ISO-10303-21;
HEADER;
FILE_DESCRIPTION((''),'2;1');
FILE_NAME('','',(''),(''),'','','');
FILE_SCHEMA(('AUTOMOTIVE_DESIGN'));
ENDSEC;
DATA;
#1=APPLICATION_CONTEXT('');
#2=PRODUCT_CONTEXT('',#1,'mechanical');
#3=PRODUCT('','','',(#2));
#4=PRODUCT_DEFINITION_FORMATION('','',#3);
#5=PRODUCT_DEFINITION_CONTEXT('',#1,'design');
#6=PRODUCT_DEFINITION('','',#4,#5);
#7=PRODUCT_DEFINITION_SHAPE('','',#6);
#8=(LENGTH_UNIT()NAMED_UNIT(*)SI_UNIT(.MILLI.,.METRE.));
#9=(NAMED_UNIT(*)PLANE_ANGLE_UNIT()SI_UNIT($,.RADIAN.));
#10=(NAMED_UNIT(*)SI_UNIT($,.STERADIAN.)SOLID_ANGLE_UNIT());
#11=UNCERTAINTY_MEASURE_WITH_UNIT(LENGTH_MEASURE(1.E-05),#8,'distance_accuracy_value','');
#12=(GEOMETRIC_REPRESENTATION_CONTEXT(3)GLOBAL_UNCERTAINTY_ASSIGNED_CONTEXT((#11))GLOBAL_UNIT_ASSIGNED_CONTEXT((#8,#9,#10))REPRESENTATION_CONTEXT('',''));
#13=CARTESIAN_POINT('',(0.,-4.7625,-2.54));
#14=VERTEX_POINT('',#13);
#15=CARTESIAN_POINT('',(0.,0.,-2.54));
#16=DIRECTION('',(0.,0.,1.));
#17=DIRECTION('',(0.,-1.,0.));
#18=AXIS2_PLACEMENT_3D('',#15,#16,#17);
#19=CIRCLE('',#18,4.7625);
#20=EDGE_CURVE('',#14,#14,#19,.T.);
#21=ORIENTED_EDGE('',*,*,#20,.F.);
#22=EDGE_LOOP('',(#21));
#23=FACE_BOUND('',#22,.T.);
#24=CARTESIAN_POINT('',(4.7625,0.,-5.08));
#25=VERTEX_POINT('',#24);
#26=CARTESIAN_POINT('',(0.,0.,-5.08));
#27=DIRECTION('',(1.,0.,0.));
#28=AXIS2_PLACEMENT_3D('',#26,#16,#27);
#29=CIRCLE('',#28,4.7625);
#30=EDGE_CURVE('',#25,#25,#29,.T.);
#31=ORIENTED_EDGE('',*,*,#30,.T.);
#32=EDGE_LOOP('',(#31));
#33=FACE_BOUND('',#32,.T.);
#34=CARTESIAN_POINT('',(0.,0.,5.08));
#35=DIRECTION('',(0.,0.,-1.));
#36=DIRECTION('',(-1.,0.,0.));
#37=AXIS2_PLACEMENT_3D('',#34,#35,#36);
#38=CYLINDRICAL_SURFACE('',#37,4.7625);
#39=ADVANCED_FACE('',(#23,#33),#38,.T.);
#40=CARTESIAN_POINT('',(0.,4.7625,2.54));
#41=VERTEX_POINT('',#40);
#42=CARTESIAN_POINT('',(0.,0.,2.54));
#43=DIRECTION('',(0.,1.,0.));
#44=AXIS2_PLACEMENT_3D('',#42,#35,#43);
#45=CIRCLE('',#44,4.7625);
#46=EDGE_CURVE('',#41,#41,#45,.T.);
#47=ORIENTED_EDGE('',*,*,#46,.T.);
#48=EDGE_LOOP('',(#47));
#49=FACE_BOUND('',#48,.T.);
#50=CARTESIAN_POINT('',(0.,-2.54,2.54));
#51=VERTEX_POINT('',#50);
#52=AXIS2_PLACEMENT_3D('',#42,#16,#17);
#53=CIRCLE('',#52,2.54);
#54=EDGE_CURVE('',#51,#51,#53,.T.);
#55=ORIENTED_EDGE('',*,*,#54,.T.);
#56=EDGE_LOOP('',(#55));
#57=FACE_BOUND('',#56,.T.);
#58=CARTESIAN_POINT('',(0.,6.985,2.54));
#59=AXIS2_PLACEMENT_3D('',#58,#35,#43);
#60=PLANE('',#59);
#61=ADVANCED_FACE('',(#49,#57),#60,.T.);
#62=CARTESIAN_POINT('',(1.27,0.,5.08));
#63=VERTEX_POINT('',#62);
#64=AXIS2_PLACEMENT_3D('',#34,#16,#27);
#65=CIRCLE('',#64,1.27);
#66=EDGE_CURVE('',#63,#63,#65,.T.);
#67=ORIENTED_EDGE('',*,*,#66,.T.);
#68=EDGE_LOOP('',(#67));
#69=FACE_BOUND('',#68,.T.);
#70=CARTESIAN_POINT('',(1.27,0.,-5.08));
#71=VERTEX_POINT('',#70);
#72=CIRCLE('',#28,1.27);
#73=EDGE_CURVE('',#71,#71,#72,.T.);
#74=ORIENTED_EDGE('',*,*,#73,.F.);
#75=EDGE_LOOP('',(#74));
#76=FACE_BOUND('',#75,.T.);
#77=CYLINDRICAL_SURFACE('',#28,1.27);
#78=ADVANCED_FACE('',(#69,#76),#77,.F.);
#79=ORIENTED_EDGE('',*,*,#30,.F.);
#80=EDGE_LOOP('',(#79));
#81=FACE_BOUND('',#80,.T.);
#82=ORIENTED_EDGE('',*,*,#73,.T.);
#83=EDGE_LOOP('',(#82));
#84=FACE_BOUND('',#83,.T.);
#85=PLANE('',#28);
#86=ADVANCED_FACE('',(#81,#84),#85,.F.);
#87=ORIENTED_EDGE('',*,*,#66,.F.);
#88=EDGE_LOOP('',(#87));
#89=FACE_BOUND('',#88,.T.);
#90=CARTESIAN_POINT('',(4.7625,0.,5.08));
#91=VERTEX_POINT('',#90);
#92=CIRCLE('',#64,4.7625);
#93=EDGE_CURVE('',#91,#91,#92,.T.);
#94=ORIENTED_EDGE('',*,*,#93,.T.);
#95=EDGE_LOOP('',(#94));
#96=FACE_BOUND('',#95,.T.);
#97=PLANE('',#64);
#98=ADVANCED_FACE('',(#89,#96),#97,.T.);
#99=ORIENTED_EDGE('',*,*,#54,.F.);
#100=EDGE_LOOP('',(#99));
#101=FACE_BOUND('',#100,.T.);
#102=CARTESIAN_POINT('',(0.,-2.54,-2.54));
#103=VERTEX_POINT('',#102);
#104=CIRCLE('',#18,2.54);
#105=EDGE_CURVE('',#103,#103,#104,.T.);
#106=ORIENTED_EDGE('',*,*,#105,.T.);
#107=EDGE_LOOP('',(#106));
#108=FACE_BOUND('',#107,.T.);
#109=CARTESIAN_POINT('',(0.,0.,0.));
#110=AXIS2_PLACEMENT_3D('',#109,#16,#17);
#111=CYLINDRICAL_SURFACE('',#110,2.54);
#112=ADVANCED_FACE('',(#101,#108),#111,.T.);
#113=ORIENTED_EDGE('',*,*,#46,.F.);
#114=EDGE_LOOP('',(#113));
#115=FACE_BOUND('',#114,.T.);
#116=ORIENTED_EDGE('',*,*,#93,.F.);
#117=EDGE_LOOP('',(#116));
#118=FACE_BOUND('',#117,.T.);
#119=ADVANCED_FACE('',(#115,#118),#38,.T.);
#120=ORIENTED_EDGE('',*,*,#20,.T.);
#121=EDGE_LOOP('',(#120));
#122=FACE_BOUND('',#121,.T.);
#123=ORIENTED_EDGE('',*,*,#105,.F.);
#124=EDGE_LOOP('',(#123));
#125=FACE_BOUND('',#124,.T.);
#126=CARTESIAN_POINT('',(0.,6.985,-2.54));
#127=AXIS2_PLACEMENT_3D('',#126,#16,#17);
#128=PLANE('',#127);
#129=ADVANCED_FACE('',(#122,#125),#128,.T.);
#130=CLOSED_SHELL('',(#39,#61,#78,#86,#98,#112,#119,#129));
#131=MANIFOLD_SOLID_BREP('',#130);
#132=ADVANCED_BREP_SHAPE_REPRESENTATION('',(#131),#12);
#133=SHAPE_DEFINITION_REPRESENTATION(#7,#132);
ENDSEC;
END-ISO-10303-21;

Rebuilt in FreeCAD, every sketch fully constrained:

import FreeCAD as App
import Part
import Sketcher
from FreeCAD import Vector
Q = App.Units.Quantity


def add_polygon(sketch, points):
    """Adds a closed chain of lines whose ends are joined by coincident constraints."""
    first, n = sketch.GeometryCount, len(points)
    for a, b in zip(points, points[1:] + points[:1]):
        sketch.addGeometry(Part.LineSegment(App.Vector(*a, 0), App.Vector(*b, 0)), False)
    for i in range(n):
        sketch.addConstraint(Sketcher.Constraint("Coincident", first + i, 2, first + (i + 1) % n, 1))

doc = App.newDocument("Part")
params = doc.addObject("Spreadsheet::Sheet", "Params")
for row, (alias, value) in enumerate([
    ("sketch1_diameter", "0.375 in"),
    ("pad1_length", "0.4 in"),
    ("sketch2_height", "0.2 in"),
    ("sketch2_width", "0.175 in"),
    ("groove_angle", "360 deg"),
    ("sketch3_diameter", "0.1 in"),
], start=1):
    params.set(f"A{row}", alias)
    params.set(f"B{row}", "=" + value)
    params.setAlias(f"B{row}", alias)

body = doc.addObject("PartDesign::Body", "Body")

# Sketch on XY plane
sketch1 = body.newObject("Sketcher::SketchObject", "Sketch")
sketch1.AttachmentSupport = (doc.getObject("XY_Plane"), [""])
sketch1.MapMode = "FlatFace"
sketch1.addGeometry(Part.Circle(Vector(0, 0, 0), Vector(0, 0, 1), 4.7625), False)
sketch1.addConstraint([
    Sketcher.Constraint("Coincident", 0, 3, -1, 1),
    Sketcher.Constraint("Diameter", 0, Q("0.375 in")),
])
sketch1.setExpression("Constraints[1]", "Params.sketch1_diameter")
pad1 = body.newObject("PartDesign::Pad", "Pad")
pad1.Profile = sketch1
pad1.setExpression("Length", "Params.pad1_length")
pad1.Midplane = True

# Sketch on YZ plane
sketch2 = body.newObject("Sketcher::SketchObject", "Sketch001")
sketch2.AttachmentSupport = (doc.getObject("YZ_Plane"), [""])
sketch2.MapMode = "FlatFace"
add_polygon(sketch2, [(6.985, 2.54), (2.54, 2.54), (2.54, -2.54), (6.985, -2.54)])  # lines 0-3
sketch2.addConstraint([
    Sketcher.Constraint("Horizontal", 0),
    Sketcher.Constraint("Vertical", 1),
    Sketcher.Constraint("Horizontal", 2),
    Sketcher.Constraint("Vertical", 3),
    Sketcher.Constraint("DistanceY", 1, 2, 1, 1, Q("0.2 in")),
    Sketcher.Constraint("DistanceX", -1, 1, 0, 2, Q("0.1 in")),
    Sketcher.Constraint("DistanceY", -1, 1, 0, 2, Q("0.1 in")),
    Sketcher.Constraint("DistanceX", 0, 2, 0, 1, Q("0.175 in")),
])
sketch2.setExpression("Constraints[8]", "Params.sketch2_height")
sketch2.setExpression("Constraints[11]", "Params.sketch2_width")
groove = body.newObject("PartDesign::Groove", "Groove")
groove.Profile = sketch2
groove.ReferenceAxis = (sketch2, ["V_Axis"])
groove.setExpression("Angle", "Params.groove_angle")

# Sketch on XY plane
sketch3 = body.newObject("Sketcher::SketchObject", "Sketch002")
sketch3.AttachmentSupport = (doc.getObject("XY_Plane"), [""])
sketch3.MapMode = "FlatFace"
sketch3.AttachmentOffset = App.Placement(Vector(0, 0, 0.2 * 25.4), App.Rotation())
sketch3.addGeometry(Part.Circle(Vector(0, 0, 0), Vector(0, 0, 1), 1.27), False)
sketch3.addConstraint([
    Sketcher.Constraint("Coincident", 0, 3, -1, 1),
    Sketcher.Constraint("Diameter", 0, Q("0.1 in")),
])
sketch3.setExpression("Constraints[1]", "Params.sketch3_diameter")
pocket1 = body.newObject("PartDesign::Pocket", "Pocket")
pocket1.Profile = sketch3
pocket1.Type = "ThroughAll"
pocket1.Midplane = True

doc.recompute()
